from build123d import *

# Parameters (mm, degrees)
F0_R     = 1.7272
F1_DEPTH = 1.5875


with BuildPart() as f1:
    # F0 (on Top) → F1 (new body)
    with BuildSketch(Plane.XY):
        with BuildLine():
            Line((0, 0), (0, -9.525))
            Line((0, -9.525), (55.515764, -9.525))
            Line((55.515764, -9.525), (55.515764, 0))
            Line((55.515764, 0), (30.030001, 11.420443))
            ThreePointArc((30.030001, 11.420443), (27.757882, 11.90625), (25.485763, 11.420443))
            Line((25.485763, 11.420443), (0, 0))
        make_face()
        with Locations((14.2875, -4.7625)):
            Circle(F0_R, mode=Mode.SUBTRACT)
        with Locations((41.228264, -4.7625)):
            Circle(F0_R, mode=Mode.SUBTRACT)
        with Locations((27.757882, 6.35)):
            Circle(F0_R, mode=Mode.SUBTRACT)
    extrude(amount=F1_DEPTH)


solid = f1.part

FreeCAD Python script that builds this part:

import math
import FreeCAD as App
import Part
import Sketcher

V = App.Vector
Q = App.Units.Quantity

doc = App.newDocument("Part")
body = doc.addObject("PartDesign::Body", "Body")

sketch1 = body.newObject("Sketcher::SketchObject", "Sketch")
sketch1.AttachmentSupport = (doc.getObject("XY_Plane"), [""])
sketch1.MapMode = "FlatFace"
sketch1.addGeometry(Part.LineSegment(V(0, 0, 0), V(0, -9.5, 0)), False)
sketch1.addGeometry(Part.LineSegment(V(0, -9.5, 0), V(55.5, -9.5, 0)), False)
sketch1.addGeometry(Part.LineSegment(V(55.5, -9.5, 0), V(55.5, 0, 0)), False)
sketch1.addGeometry(Part.LineSegment(V(55.5, 0, 0), V(30, 11.4, 0)), False)
sketch1.addGeometry(Part.ArcOfCircle(Part.Circle(V(27.8, 6.3, 0), V(0, 0, 1), 5.6), math.radians(66), math.radians(114)), False)
sketch1.addGeometry(Part.LineSegment(V(25.5, 11.4, 0), V(0, 0, 0)), False)
sketch1.addGeometry(Part.Circle(V(14.3, -4.8, 0), V(0, 0, 1), 1.7), False)
sketch1.addGeometry(Part.Circle(V(41.2, -4.8, 0), V(0, 0, 1), 1.7), False)
sketch1.addGeometry(Part.Circle(V(27.8, 6.3, 0), V(0, 0, 1), 1.7), False)
sketch1.addConstraint(Sketcher.Constraint("Coincident", 0, 2, 1, 1))
sketch1.addConstraint(Sketcher.Constraint("Coincident", 1, 2, 2, 1))
sketch1.addConstraint(Sketcher.Constraint("Coincident", 2, 2, 3, 1))
sketch1.addConstraint(Sketcher.Constraint("Tangent", 3, 2, 4, 1))
sketch1.addConstraint(Sketcher.Constraint("Tangent", 4, 2, 5, 1))
sketch1.addConstraint(Sketcher.Constraint("Coincident", 5, 2, 0, 1))
sketch1.addConstraint(Sketcher.Constraint("Vertical", 0))
sketch1.addConstraint(Sketcher.Constraint("Horizontal", 1))
sketch1.addConstraint(Sketcher.Constraint("Vertical", 2))
sketch1.addConstraint(Sketcher.Constraint("Coincident", 5, 2, -1, 1))
sketch1.addConstraint(Sketcher.Constraint("Coincident", 8, 3, 4, 3))
sketch1.addConstraint(Sketcher.Constraint("Equal", 6, 7))
sketch1.addConstraint(Sketcher.Constraint("Equal", 7, 8))
sketch1.addConstraint(Sketcher.Constraint("PointOnObject", 2, 2, -1))
sketch1.addConstraint(Sketcher.Constraint("Horizontal", 6, 3, 7, 3))
sketch1.addConstraint(Sketcher.Constraint("Horizontal", 3, 2, 4, 2))
sketch1.addConstraint(Sketcher.Constraint("Diameter", 6, Q("0.136 in")))
sketch1.addConstraint(Sketcher.Constraint("Radius", 4, Q("0.2187501 in")))
sketch1.addConstraint(Sketcher.Constraint("DistanceY", 0, 2, 0, 1, Q("0.375 in")))
sketch1.addConstraint(Sketcher.Constraint("DistanceY", -1, 1, 4, 3, Q("0.2499999 in")))
sketch1.addConstraint(Sketcher.Constraint("DistanceX", -1, 1, 6, 3, Q("0.5625 in")))
sketch1.addConstraint(Sketcher.Constraint("DistanceY", 6, 3, -1, 1, Q("0.1875 in")))
sketch1.addConstraint(Sketcher.Constraint("DistanceX", 7, 3, 1, 2, Q("0.5625 in")))
sketch1.addConstraint(Sketcher.Constraint("DistanceX", -1, 1, 3, 2, 30.030001))
pad1 = body.newObject("PartDesign::Pad", "Pad")
pad1.Profile = sketch1
pad1.Length = Q("0.0625 in")

doc.recompute()
